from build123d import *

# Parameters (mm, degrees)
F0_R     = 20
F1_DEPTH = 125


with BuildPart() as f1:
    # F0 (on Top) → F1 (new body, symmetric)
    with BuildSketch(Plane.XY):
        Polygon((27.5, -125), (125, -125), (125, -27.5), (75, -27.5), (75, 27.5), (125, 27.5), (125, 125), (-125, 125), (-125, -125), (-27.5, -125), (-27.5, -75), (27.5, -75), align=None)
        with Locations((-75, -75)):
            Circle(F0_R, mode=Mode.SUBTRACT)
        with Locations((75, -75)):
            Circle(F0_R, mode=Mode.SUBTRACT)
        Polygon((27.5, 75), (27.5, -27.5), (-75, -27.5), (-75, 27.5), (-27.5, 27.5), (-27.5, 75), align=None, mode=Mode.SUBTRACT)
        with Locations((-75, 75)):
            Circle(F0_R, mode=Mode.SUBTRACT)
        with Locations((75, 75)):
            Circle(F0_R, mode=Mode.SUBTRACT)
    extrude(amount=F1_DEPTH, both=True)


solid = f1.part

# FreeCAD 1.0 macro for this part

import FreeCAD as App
import Part
import Sketcher
Q = App.Units.Quantity

doc = App.newDocument("Part")
params = doc.addObject("Spreadsheet::Sheet", "Params")
for row, (alias, value) in enumerate([
    ("sketch1_diameter", "40 mm"),
    ("sketch1_width", "50 mm"),
    ("sketch1_width2", "250 mm"),
    ("sketch1_width3", "55 mm"),
    ("pad1_length", "250 mm"),
], start=1):
    params.set(f"A{row}", alias)
    params.set(f"B{row}", "=" + value)
    params.setAlias(f"B{row}", alias)

body = doc.addObject("PartDesign::Body", "Body")

# Sketch on XY plane
sketch1 = doc.addObject("Sketcher::SketchObject", "Sketch")
body.addObject(sketch1)
sketch1.AttachmentSupport = (doc.XY_Plane, [""])
sketch1.MapMode = "FlatFace"
sketch1.addGeometry(Part.LineSegment(App.Vector(28, -125, 0), App.Vector(125, -125, 0)), False)
sketch1.addGeometry(Part.LineSegment(App.Vector(125, -125, 0), App.Vector(125, -28, 0)), False)
sketch1.addGeometry(Part.LineSegment(App.Vector(125, -28, 0), App.Vector(75, -28, 0)), False)
sketch1.addGeometry(Part.LineSegment(App.Vector(75, -28, 0), App.Vector(75, 28, 0)), False)
sketch1.addGeometry(Part.LineSegment(App.Vector(75, 28, 0), App.Vector(125, 28, 0)), False)
sketch1.addGeometry(Part.LineSegment(App.Vector(125, 28, 0), App.Vector(125, 125, 0)), False)
sketch1.addGeometry(Part.LineSegment(App.Vector(125, 125, 0), App.Vector(-125, 125, 0)), False)
sketch1.addGeometry(Part.LineSegment(App.Vector(-125, 125, 0), App.Vector(-125, -125, 0)), False)
sketch1.addGeometry(Part.LineSegment(App.Vector(-125, -125, 0), App.Vector(-28, -125, 0)), False)
sketch1.addGeometry(Part.LineSegment(App.Vector(-28, -125, 0), App.Vector(-28, -75, 0)), False)
sketch1.addGeometry(Part.LineSegment(App.Vector(-28, -75, 0), App.Vector(28, -75, 0)), False)
sketch1.addGeometry(Part.LineSegment(App.Vector(28, -75, 0), App.Vector(28, -125, 0)), False)
sketch1.addGeometry(Part.Circle(App.Vector(-75, -75, 0), App.Vector(0, 0, 1), 20), False)
sketch1.addGeometry(Part.Circle(App.Vector(75, -75, 0), App.Vector(0, 0, 1), 20), False)
sketch1.addGeometry(Part.LineSegment(App.Vector(-28, 75, 0), App.Vector(28, 75, 0)), False)
sketch1.addGeometry(Part.LineSegment(App.Vector(28, 75, 0), App.Vector(28, -28, 0)), False)
sketch1.addGeometry(Part.LineSegment(App.Vector(28, -28, 0), App.Vector(-75, -28, 0)), False)
sketch1.addGeometry(Part.LineSegment(App.Vector(-75, -28, 0), App.Vector(-75, 28, 0)), False)
sketch1.addGeometry(Part.LineSegment(App.Vector(-75, 28, 0), App.Vector(-28, 28, 0)), False)
sketch1.addGeometry(Part.LineSegment(App.Vector(-28, 28, 0), App.Vector(-28, 75, 0)), False)
sketch1.addGeometry(Part.Circle(App.Vector(-75, 75, 0), App.Vector(0, 0, 1), 20), False)
sketch1.addGeometry(Part.Circle(App.Vector(75, 75, 0), App.Vector(0, 0, 1), 20), False)
sketch1.addConstraint(Sketcher.Constraint("Coincident", 0, 2, 1, 1))
sketch1.addConstraint(Sketcher.Constraint("Coincident", 1, 2, 2, 1))
sketch1.addConstraint(Sketcher.Constraint("Coincident", 2, 2, 3, 1))
sketch1.addConstraint(Sketcher.Constraint("Coincident", 3, 2, 4, 1))
sketch1.addConstraint(Sketcher.Constraint("Coincident", 4, 2, 5, 1))
sketch1.addConstraint(Sketcher.Constraint("Coincident", 5, 2, 6, 1))
sketch1.addConstraint(Sketcher.Constraint("Coincident", 6, 2, 7, 1))
sketch1.addConstraint(Sketcher.Constraint("Coincident", 7, 2, 8, 1))
sketch1.addConstraint(Sketcher.Constraint("Coincident", 8, 2, 9, 1))
sketch1.addConstraint(Sketcher.Constraint("Coincident", 9, 2, 10, 1))
sketch1.addConstraint(Sketcher.Constraint("Coincident", 10, 2, 11, 1))
sketch1.addConstraint(Sketcher.Constraint("Coincident", 11, 2, 0, 1))
sketch1.addConstraint(Sketcher.Constraint("Coincident", 14, 2, 15, 1))
sketch1.addConstraint(Sketcher.Constraint("Coincident", 15, 2, 16, 1))
sketch1.addConstraint(Sketcher.Constraint("Coincident", 16, 2, 17, 1))
sketch1.addConstraint(Sketcher.Constraint("Coincident", 17, 2, 18, 1))
sketch1.addConstraint(Sketcher.Constraint("Coincident", 18, 2, 19, 1))
sketch1.addConstraint(Sketcher.Constraint("Coincident", 19, 2, 14, 1))
sketch1.addConstraint(Sketcher.Constraint("Horizontal", 0))
sketch1.addConstraint(Sketcher.Constraint("Vertical", 1))
sketch1.addConstraint(Sketcher.Constraint("Horizontal", 2))
sketch1.addConstraint(Sketcher.Constraint("Vertical", 3))
sketch1.addConstraint(Sketcher.Constraint("Horizontal", 4))
sketch1.addConstraint(Sketcher.Constraint("Vertical", 5))
sketch1.addConstraint(Sketcher.Constraint("Horizontal", 6))
sketch1.addConstraint(Sketcher.Constraint("Vertical", 7))
sketch1.addConstraint(Sketcher.Constraint("Horizontal", 8))
sketch1.addConstraint(Sketcher.Constraint("Vertical", 9))
sketch1.addConstraint(Sketcher.Constraint("Horizontal", 10))
sketch1.addConstraint(Sketcher.Constraint("Vertical", 11))
sketch1.addConstraint(Sketcher.Constraint("Horizontal", 14))
sketch1.addConstraint(Sketcher.Constraint("Vertical", 15))
sketch1.addConstraint(Sketcher.Constraint("Horizontal", 16))
sketch1.addConstraint(Sketcher.Constraint("Vertical", 17))
sketch1.addConstraint(Sketcher.Constraint("Horizontal", 18))
sketch1.addConstraint(Sketcher.Constraint("Vertical", 19))
sketch1.addConstraint(Sketcher.Constraint("Equal", 12, 13))
sketch1.addConstraint(Sketcher.Constraint("Equal", 13, 20))
sketch1.addConstraint(Sketcher.Constraint("Equal", 20, 21))
sketch1.addConstraint(Sketcher.Constraint("Symmetric", 13, 3, 20, 3, -1, 1))
sketch1.addConstraint(Sketcher.Constraint("Symmetric", 12, 3, 21, 3, -1, 1))
sketch1.addConstraint(Sketcher.Constraint("Symmetric", 0, 2, 6, 2, -1, 1))
sketch1.addConstraint(Sketcher.Constraint("Symmetric", 5, 2, 7, 2, -1, 1))
sketch1.addConstraint(Sketcher.Constraint("Symmetric", 9, 2, 14, 2, -1, 1))
sketch1.addConstraint(Sketcher.Constraint("Symmetric", 3, 2, 16, 2, -1, 1))
sketch1.addConstraint(Sketcher.Constraint("Symmetric", 15, 2, 18, 2, -1, 1))
sketch1.addConstraint(Sketcher.Constraint("Symmetric", 12, 3, 13, 3, -2))
sketch1.addConstraint(Sketcher.Constraint("Horizontal", 13, 3, 9, 2))
sketch1.addConstraint(Sketcher.Constraint("Horizontal", 2, 2, 15, 2))
sketch1.addConstraint(Sketcher.Constraint("Vertical", 21, 3, 2, 2))
sketch1.addConstraint(Sketcher.Constraint("Vertical", 11, 2, 14, 2))
sketch1.addConstraint(Sketcher.Constraint("Equal", 8, 1))
sketch1.addConstraint(Sketcher.Constraint("Equal", 14, 3))
sketch1.addConstraint(Sketcher.Constraint("Equal", 4, 9))
sketch1.addConstraint(Sketcher.Constraint("Diameter", 12, Q("40 mm")))
sketch1.addConstraint(Sketcher.Constraint("DistanceX", 2, 2, 2, 1, Q("50 mm")))
sketch1.addConstraint(Sketcher.Constraint("DistanceX", 6, 2, 6, 1, Q("250 mm")))
sketch1.addConstraint(Sketcher.Constraint("DistanceX", 10, 1, 10, 2, Q("55 mm")))
sketch1.setExpression("Constraints[54]", "Params.sketch1_diameter")
sketch1.setExpression("Constraints[55]", "Params.sketch1_width")
sketch1.setExpression("Constraints[56]", "Params.sketch1_width2")
sketch1.setExpression("Constraints[57]", "Params.sketch1_width3")
pad1 = doc.addObject("PartDesign::Pad", "Pad")
body.addObject(pad1)
pad1.Profile = sketch1
pad1.setExpression("Length", "Params.pad1_length")
pad1.Midplane = True

doc.recompute()
